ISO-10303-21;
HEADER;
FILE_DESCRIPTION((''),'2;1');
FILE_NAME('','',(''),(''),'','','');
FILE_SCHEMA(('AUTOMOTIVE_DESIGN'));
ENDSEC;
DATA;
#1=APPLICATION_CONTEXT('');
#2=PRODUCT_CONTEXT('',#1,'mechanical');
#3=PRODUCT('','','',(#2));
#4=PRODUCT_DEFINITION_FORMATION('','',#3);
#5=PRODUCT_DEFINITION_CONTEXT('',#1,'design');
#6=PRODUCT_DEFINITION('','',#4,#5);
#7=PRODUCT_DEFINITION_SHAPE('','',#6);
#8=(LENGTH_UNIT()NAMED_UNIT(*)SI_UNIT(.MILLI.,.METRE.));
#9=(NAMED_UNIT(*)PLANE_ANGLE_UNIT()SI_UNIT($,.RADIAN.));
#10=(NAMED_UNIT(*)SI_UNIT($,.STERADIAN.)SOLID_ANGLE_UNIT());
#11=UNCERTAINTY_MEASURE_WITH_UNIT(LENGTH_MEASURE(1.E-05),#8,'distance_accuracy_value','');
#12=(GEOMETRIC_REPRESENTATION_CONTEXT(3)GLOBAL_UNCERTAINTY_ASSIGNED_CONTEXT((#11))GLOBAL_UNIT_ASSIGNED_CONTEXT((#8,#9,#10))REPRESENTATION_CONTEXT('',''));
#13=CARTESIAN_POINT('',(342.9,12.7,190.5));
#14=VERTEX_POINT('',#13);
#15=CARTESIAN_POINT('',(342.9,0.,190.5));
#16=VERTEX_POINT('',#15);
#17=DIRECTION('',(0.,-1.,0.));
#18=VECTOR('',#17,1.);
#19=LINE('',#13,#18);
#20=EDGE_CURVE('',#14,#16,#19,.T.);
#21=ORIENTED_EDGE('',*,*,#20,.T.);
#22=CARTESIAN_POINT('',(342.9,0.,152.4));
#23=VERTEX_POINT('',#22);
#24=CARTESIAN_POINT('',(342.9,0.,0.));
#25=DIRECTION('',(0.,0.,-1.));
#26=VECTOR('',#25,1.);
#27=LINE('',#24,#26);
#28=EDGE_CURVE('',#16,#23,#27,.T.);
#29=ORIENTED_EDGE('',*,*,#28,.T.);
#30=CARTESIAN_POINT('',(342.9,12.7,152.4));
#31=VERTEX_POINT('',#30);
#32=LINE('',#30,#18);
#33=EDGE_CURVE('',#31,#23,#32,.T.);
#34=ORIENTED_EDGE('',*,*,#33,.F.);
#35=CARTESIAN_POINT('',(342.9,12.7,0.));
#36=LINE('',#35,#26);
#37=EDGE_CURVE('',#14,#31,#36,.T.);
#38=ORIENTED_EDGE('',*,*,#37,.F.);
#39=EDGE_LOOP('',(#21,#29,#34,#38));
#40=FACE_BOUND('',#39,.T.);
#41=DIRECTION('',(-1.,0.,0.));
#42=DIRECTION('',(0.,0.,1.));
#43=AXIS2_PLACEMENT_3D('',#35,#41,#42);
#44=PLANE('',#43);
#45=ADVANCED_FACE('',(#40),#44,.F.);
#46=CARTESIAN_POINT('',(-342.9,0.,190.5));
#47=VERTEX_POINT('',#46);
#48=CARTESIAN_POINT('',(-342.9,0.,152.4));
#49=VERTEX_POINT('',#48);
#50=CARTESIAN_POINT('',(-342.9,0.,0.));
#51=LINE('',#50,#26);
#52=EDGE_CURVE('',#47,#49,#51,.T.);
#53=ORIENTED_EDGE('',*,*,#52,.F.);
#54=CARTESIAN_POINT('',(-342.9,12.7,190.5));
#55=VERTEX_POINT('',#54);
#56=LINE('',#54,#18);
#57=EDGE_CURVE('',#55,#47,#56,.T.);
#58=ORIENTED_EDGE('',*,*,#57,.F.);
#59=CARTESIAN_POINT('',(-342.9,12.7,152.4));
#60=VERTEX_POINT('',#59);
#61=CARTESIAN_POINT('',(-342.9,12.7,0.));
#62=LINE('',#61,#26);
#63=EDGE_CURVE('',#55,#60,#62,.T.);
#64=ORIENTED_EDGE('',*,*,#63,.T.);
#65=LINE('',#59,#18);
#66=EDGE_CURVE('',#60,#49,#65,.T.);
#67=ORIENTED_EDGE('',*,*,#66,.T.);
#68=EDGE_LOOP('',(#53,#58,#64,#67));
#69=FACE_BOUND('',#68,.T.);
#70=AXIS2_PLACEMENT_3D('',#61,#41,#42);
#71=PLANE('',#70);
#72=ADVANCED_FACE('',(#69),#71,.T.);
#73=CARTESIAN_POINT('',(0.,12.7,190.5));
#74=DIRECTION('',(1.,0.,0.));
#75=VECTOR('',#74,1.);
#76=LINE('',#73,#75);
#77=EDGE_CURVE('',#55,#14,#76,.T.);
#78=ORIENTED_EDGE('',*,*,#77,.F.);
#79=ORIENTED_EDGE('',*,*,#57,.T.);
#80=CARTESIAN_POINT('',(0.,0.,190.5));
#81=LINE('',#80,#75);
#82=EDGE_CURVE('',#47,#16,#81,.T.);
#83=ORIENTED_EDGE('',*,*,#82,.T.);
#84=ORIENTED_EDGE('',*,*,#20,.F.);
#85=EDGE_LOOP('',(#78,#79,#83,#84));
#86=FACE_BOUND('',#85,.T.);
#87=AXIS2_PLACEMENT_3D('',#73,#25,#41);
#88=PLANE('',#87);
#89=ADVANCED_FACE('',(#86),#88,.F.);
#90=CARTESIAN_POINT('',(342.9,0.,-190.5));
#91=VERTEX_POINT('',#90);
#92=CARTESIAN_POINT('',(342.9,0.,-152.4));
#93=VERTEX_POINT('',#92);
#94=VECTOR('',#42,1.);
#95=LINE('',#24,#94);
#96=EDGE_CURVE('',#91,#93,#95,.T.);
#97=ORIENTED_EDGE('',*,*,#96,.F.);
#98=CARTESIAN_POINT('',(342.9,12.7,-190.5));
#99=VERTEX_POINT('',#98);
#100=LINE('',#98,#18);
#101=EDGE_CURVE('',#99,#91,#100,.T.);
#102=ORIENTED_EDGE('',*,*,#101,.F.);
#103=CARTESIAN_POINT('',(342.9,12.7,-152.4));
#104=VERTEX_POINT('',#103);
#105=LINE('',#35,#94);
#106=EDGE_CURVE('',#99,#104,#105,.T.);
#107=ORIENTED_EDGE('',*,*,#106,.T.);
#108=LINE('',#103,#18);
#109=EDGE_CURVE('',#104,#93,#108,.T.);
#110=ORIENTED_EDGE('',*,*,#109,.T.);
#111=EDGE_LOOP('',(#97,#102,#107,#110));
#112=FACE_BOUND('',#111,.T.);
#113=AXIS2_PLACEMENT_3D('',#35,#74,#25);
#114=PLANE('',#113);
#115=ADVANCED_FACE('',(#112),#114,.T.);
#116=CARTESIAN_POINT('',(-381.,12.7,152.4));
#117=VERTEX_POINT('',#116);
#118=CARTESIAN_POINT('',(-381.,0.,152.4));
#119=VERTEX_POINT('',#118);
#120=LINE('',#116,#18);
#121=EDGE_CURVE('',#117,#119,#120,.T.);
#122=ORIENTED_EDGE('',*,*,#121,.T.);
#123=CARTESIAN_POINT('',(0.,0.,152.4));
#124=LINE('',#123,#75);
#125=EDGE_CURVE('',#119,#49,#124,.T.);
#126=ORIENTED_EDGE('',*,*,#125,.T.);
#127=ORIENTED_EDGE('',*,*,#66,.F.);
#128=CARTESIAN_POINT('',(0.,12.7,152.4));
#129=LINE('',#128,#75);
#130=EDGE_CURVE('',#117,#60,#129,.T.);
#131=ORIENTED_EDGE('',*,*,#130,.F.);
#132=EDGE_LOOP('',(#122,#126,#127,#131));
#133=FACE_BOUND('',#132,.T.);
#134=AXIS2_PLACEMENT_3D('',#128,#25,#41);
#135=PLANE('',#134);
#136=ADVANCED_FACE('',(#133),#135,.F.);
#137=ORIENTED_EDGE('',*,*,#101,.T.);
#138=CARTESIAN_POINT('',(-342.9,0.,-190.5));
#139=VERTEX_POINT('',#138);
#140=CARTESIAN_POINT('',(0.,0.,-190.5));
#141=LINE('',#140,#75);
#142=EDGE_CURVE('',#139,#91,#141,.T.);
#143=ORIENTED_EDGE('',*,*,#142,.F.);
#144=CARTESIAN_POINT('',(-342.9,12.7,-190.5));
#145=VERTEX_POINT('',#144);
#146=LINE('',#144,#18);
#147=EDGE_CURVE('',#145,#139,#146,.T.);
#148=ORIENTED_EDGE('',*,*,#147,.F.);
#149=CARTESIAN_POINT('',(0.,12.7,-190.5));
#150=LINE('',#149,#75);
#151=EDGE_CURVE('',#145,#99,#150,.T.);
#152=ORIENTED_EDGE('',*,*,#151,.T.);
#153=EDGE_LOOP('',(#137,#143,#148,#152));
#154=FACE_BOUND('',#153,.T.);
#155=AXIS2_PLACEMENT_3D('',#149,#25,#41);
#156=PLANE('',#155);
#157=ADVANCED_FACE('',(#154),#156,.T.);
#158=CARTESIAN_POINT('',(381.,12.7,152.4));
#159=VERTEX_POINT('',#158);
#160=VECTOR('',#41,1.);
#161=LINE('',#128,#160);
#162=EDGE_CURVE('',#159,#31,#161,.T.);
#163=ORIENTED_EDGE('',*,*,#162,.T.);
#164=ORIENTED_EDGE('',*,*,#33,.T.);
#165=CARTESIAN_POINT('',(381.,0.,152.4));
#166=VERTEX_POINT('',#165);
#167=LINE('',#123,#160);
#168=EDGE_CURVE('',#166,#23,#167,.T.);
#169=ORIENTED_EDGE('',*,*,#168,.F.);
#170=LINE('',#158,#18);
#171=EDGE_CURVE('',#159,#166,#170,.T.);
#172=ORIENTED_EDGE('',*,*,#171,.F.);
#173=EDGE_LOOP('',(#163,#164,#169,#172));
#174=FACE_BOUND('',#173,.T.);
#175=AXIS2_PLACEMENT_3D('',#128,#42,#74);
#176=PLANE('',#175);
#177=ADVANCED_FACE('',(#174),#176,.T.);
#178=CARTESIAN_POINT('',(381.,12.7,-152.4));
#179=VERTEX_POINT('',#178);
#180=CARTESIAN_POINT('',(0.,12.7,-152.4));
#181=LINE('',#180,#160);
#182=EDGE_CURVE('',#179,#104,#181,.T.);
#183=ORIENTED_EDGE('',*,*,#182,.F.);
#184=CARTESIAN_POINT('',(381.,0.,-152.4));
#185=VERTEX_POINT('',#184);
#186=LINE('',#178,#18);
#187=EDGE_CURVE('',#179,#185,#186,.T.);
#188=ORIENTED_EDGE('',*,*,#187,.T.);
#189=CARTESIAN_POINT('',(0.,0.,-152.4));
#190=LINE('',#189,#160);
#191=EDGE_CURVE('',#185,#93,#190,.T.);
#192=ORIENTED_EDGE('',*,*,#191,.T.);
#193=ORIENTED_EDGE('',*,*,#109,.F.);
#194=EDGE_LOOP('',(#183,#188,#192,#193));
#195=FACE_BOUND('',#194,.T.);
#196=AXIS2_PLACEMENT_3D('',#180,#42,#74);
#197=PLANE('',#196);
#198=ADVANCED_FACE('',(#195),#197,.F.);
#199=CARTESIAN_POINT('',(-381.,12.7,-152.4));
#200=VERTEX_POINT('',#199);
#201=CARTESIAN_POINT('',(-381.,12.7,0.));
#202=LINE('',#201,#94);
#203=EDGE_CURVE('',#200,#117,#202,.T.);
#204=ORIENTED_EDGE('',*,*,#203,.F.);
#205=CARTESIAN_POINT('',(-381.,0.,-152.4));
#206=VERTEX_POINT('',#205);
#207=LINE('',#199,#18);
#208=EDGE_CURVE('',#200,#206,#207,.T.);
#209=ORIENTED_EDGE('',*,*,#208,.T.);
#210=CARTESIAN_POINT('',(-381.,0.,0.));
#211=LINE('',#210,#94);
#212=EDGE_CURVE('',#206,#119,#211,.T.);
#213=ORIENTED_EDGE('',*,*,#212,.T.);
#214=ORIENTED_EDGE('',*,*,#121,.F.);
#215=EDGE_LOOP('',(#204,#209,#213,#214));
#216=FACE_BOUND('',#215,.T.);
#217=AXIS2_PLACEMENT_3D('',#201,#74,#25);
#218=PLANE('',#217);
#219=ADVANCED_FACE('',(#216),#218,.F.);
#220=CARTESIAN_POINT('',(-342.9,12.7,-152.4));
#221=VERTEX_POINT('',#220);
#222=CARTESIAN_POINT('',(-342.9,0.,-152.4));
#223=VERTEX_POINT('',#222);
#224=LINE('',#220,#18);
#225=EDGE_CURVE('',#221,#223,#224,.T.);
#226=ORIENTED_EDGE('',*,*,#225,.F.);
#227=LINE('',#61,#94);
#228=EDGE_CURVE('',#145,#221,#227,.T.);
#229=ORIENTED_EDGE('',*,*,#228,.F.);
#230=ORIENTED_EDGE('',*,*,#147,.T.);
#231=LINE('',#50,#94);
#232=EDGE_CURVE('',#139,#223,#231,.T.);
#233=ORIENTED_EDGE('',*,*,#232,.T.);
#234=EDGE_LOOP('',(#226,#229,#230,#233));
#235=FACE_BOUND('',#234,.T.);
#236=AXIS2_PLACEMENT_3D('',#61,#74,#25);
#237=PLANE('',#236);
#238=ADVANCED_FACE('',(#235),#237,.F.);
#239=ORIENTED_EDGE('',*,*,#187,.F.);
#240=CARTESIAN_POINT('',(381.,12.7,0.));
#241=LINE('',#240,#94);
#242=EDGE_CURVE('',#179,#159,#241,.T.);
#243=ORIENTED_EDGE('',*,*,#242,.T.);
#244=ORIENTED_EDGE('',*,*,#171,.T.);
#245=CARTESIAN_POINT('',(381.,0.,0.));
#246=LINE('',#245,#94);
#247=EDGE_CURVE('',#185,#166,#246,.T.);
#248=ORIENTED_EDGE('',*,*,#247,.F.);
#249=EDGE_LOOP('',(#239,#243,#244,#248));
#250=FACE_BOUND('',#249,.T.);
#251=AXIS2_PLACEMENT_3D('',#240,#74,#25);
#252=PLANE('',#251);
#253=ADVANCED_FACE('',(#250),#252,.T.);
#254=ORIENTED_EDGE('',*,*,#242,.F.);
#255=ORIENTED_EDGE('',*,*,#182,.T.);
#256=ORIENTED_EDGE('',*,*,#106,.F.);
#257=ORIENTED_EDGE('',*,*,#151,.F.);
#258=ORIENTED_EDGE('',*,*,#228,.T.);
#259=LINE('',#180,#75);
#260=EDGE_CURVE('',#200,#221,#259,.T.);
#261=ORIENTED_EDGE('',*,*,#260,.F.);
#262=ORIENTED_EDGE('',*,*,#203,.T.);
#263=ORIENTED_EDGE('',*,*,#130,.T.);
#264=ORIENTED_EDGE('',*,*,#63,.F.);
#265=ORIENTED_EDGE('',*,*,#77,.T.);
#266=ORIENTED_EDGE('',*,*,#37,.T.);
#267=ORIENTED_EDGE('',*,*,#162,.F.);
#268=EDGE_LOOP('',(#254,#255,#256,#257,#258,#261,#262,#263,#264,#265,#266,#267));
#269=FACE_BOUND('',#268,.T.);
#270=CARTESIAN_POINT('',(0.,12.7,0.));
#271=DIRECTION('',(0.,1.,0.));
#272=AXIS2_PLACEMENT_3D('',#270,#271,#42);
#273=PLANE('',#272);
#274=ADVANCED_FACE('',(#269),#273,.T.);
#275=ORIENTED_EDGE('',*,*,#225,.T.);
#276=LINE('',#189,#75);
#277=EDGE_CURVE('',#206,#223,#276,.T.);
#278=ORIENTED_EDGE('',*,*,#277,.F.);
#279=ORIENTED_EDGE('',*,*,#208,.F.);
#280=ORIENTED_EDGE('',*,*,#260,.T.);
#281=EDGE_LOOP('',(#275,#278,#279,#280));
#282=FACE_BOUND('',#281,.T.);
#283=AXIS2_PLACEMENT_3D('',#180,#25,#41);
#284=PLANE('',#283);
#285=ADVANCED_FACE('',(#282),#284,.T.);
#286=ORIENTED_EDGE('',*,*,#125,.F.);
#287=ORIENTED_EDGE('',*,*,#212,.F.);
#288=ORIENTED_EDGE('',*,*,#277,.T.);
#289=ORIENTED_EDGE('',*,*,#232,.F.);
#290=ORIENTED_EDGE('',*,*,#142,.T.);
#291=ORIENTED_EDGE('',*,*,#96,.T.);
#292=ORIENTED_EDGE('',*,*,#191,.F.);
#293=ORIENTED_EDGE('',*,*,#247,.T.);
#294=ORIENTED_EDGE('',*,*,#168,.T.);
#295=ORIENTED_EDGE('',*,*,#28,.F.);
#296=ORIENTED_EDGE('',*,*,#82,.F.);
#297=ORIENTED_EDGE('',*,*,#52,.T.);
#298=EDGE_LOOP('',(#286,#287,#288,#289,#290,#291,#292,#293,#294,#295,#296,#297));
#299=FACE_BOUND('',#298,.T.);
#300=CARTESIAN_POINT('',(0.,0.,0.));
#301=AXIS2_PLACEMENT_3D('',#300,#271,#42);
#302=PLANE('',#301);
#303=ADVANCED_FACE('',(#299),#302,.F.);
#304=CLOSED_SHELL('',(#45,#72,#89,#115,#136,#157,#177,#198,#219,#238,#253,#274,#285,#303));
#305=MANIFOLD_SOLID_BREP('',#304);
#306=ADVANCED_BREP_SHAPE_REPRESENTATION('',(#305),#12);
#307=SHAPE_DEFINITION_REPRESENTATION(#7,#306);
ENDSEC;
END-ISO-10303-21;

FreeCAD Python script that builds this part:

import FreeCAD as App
import Part
import Sketcher
Q = App.Units.Quantity


def add_polygon(sketch, points):
    """Adds a closed chain of lines whose ends are joined by coincident constraints."""
    first, n = sketch.GeometryCount, len(points)
    for a, b in zip(points, points[1:] + points[:1]):
        sketch.addGeometry(Part.LineSegment(App.Vector(*a, 0), App.Vector(*b, 0)), False)
    for i in range(n):
        sketch.addConstraint(Sketcher.Constraint("Coincident", first + i, 2, first + (i + 1) % n, 1))

doc = App.newDocument("Part")
params = doc.addObject("Spreadsheet::Sheet", "Params")
for row, (alias, value) in enumerate([
    ("sketch1_width", "27 in"),
    ("sketch1_height", "12 in"),
    ("sketch1_width2", "1.5 in"),
    ("pad1_length", "0.5 in"),
], start=1):
    params.set(f"A{row}", alias)
    params.set(f"B{row}", "=" + value)
    params.setAlias(f"B{row}", alias)

body = doc.addObject("PartDesign::Body", "Body")

sketch1 = body.newObject("Sketcher::SketchObject", "Sketch")
sketch1.AttachmentSupport = (doc.getObject("XZ_Plane"), [""])
sketch1.MapMode = "FlatFace"
add_polygon(sketch1, [(343, -190), (-343, -190), (-343, -152), (-381, -152), (-381, 152), (-343, 152), (-343, 190), (343, 190), (343, 152), (381, 152), (381, -152), (343, -152)])
sketch1.addConstraint([
    Sketcher.Constraint("Horizontal", 0),
    Sketcher.Constraint("Vertical", 1),
    Sketcher.Constraint("Horizontal", 2),
    Sketcher.Constraint("Vertical", 3),
    Sketcher.Constraint("Horizontal", 4),
    Sketcher.Constraint("Vertical", 5),
    Sketcher.Constraint("Horizontal", 6),
    Sketcher.Constraint("Vertical", 7),
    Sketcher.Constraint("Horizontal", 8),
    Sketcher.Constraint("Vertical", 9),
    Sketcher.Constraint("Horizontal", 10),
    Sketcher.Constraint("Vertical", 11),
    Sketcher.Constraint("Symmetric", 0, 2, 6, 2, -1, 1),
    Sketcher.Constraint("Symmetric", 2, 2, 8, 2, -1, 1),
    Sketcher.Constraint("Symmetric", 4, 2, 10, 2, -1, 1),
    Sketcher.Constraint("Symmetric", 4, 2, 7, 2, -2),
    Sketcher.Constraint("Equal", 10, 1),
    Sketcher.Constraint("DistanceX", 0, 2, 0, 1, Q("27 in")),
    Sketcher.Constraint("DistanceY", 3, 1, 3, 2, Q("12 in")),
    Sketcher.Constraint("DistanceX", 2, 2, 2, 1, Q("1.5 in")),
])
sketch1.setExpression("Constraints[29]", "Params.sketch1_width")
sketch1.setExpression("Constraints[30]", "Params.sketch1_height")
sketch1.setExpression("Constraints[31]", "Params.sketch1_width2")
pad1 = body.newObject("PartDesign::Pad", "Pad")
pad1.Profile = sketch1
pad1.setExpression("Length", "Params.pad1_length")
pad1.Reversed = True

doc.recompute()
